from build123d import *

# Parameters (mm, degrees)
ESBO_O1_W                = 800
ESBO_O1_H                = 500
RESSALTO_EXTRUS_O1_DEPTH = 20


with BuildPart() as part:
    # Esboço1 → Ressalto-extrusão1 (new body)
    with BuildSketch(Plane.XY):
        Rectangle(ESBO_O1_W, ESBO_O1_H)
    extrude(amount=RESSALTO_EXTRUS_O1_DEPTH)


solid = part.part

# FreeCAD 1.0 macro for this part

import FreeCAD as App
import Part
import Sketcher

V = App.Vector
Q = App.Units.Quantity


def add_polygon(sketch, points):
    """Adds a closed chain of lines whose ends are joined by coincident constraints."""
    first, n = sketch.GeometryCount, len(points)
    for a, b in zip(points, points[1:] + points[:1]):
        sketch.addGeometry(Part.LineSegment(App.Vector(*a, 0), App.Vector(*b, 0)), False)
    for i in range(n):
        sketch.addConstraint(Sketcher.Constraint("Coincident", first + i, 2, first + (i + 1) % n, 1))

doc = App.newDocument("Part")
params = doc.addObject("Spreadsheet::Sheet", "Params")
for row, (alias, value) in enumerate([
    ("sketch1_width", "800 mm"),
    ("sketch1_height", "500 mm"),
    ("pad1_length", "20 mm"),
], start=1):
    params.set(f"A{row}", alias)
    params.set(f"B{row}", "=" + value)
    params.setAlias(f"B{row}", alias)

body = doc.addObject("PartDesign::Body", "Body")

# Sketch on XY plane
sketch1 = body.newObject("Sketcher::SketchObject", "Sketch")
sketch1.AttachmentSupport = (doc.getObject("XY_Plane"), [""])
sketch1.MapMode = "FlatFace"
add_polygon(sketch1, [(-400, 250), (-400, -250), (400, -250), (400, 250)])  # lines 0-3
sketch1.addConstraint([
    Sketcher.Constraint("Vertical", 0),
    Sketcher.Constraint("Horizontal", 1),
    Sketcher.Constraint("Vertical", 2),
    Sketcher.Constraint("Horizontal", 3),
    Sketcher.Constraint("Symmetric", 0, 2, 2, 2, -1, 1),
    Sketcher.Constraint("DistanceX", 1, 1, 1, 2, Q("800 mm")),
    Sketcher.Constraint("DistanceY", 0, 2, 0, 1, Q("500 mm")),
])
sketch1.setExpression("Constraints[9]", "Params.sketch1_width")
sketch1.setExpression("Constraints[10]", "Params.sketch1_height")
pad1 = body.newObject("PartDesign::Pad", "Pad")
pad1.Profile = sketch1
pad1.setExpression("Length", "Params.pad1_length")

doc.recompute()
